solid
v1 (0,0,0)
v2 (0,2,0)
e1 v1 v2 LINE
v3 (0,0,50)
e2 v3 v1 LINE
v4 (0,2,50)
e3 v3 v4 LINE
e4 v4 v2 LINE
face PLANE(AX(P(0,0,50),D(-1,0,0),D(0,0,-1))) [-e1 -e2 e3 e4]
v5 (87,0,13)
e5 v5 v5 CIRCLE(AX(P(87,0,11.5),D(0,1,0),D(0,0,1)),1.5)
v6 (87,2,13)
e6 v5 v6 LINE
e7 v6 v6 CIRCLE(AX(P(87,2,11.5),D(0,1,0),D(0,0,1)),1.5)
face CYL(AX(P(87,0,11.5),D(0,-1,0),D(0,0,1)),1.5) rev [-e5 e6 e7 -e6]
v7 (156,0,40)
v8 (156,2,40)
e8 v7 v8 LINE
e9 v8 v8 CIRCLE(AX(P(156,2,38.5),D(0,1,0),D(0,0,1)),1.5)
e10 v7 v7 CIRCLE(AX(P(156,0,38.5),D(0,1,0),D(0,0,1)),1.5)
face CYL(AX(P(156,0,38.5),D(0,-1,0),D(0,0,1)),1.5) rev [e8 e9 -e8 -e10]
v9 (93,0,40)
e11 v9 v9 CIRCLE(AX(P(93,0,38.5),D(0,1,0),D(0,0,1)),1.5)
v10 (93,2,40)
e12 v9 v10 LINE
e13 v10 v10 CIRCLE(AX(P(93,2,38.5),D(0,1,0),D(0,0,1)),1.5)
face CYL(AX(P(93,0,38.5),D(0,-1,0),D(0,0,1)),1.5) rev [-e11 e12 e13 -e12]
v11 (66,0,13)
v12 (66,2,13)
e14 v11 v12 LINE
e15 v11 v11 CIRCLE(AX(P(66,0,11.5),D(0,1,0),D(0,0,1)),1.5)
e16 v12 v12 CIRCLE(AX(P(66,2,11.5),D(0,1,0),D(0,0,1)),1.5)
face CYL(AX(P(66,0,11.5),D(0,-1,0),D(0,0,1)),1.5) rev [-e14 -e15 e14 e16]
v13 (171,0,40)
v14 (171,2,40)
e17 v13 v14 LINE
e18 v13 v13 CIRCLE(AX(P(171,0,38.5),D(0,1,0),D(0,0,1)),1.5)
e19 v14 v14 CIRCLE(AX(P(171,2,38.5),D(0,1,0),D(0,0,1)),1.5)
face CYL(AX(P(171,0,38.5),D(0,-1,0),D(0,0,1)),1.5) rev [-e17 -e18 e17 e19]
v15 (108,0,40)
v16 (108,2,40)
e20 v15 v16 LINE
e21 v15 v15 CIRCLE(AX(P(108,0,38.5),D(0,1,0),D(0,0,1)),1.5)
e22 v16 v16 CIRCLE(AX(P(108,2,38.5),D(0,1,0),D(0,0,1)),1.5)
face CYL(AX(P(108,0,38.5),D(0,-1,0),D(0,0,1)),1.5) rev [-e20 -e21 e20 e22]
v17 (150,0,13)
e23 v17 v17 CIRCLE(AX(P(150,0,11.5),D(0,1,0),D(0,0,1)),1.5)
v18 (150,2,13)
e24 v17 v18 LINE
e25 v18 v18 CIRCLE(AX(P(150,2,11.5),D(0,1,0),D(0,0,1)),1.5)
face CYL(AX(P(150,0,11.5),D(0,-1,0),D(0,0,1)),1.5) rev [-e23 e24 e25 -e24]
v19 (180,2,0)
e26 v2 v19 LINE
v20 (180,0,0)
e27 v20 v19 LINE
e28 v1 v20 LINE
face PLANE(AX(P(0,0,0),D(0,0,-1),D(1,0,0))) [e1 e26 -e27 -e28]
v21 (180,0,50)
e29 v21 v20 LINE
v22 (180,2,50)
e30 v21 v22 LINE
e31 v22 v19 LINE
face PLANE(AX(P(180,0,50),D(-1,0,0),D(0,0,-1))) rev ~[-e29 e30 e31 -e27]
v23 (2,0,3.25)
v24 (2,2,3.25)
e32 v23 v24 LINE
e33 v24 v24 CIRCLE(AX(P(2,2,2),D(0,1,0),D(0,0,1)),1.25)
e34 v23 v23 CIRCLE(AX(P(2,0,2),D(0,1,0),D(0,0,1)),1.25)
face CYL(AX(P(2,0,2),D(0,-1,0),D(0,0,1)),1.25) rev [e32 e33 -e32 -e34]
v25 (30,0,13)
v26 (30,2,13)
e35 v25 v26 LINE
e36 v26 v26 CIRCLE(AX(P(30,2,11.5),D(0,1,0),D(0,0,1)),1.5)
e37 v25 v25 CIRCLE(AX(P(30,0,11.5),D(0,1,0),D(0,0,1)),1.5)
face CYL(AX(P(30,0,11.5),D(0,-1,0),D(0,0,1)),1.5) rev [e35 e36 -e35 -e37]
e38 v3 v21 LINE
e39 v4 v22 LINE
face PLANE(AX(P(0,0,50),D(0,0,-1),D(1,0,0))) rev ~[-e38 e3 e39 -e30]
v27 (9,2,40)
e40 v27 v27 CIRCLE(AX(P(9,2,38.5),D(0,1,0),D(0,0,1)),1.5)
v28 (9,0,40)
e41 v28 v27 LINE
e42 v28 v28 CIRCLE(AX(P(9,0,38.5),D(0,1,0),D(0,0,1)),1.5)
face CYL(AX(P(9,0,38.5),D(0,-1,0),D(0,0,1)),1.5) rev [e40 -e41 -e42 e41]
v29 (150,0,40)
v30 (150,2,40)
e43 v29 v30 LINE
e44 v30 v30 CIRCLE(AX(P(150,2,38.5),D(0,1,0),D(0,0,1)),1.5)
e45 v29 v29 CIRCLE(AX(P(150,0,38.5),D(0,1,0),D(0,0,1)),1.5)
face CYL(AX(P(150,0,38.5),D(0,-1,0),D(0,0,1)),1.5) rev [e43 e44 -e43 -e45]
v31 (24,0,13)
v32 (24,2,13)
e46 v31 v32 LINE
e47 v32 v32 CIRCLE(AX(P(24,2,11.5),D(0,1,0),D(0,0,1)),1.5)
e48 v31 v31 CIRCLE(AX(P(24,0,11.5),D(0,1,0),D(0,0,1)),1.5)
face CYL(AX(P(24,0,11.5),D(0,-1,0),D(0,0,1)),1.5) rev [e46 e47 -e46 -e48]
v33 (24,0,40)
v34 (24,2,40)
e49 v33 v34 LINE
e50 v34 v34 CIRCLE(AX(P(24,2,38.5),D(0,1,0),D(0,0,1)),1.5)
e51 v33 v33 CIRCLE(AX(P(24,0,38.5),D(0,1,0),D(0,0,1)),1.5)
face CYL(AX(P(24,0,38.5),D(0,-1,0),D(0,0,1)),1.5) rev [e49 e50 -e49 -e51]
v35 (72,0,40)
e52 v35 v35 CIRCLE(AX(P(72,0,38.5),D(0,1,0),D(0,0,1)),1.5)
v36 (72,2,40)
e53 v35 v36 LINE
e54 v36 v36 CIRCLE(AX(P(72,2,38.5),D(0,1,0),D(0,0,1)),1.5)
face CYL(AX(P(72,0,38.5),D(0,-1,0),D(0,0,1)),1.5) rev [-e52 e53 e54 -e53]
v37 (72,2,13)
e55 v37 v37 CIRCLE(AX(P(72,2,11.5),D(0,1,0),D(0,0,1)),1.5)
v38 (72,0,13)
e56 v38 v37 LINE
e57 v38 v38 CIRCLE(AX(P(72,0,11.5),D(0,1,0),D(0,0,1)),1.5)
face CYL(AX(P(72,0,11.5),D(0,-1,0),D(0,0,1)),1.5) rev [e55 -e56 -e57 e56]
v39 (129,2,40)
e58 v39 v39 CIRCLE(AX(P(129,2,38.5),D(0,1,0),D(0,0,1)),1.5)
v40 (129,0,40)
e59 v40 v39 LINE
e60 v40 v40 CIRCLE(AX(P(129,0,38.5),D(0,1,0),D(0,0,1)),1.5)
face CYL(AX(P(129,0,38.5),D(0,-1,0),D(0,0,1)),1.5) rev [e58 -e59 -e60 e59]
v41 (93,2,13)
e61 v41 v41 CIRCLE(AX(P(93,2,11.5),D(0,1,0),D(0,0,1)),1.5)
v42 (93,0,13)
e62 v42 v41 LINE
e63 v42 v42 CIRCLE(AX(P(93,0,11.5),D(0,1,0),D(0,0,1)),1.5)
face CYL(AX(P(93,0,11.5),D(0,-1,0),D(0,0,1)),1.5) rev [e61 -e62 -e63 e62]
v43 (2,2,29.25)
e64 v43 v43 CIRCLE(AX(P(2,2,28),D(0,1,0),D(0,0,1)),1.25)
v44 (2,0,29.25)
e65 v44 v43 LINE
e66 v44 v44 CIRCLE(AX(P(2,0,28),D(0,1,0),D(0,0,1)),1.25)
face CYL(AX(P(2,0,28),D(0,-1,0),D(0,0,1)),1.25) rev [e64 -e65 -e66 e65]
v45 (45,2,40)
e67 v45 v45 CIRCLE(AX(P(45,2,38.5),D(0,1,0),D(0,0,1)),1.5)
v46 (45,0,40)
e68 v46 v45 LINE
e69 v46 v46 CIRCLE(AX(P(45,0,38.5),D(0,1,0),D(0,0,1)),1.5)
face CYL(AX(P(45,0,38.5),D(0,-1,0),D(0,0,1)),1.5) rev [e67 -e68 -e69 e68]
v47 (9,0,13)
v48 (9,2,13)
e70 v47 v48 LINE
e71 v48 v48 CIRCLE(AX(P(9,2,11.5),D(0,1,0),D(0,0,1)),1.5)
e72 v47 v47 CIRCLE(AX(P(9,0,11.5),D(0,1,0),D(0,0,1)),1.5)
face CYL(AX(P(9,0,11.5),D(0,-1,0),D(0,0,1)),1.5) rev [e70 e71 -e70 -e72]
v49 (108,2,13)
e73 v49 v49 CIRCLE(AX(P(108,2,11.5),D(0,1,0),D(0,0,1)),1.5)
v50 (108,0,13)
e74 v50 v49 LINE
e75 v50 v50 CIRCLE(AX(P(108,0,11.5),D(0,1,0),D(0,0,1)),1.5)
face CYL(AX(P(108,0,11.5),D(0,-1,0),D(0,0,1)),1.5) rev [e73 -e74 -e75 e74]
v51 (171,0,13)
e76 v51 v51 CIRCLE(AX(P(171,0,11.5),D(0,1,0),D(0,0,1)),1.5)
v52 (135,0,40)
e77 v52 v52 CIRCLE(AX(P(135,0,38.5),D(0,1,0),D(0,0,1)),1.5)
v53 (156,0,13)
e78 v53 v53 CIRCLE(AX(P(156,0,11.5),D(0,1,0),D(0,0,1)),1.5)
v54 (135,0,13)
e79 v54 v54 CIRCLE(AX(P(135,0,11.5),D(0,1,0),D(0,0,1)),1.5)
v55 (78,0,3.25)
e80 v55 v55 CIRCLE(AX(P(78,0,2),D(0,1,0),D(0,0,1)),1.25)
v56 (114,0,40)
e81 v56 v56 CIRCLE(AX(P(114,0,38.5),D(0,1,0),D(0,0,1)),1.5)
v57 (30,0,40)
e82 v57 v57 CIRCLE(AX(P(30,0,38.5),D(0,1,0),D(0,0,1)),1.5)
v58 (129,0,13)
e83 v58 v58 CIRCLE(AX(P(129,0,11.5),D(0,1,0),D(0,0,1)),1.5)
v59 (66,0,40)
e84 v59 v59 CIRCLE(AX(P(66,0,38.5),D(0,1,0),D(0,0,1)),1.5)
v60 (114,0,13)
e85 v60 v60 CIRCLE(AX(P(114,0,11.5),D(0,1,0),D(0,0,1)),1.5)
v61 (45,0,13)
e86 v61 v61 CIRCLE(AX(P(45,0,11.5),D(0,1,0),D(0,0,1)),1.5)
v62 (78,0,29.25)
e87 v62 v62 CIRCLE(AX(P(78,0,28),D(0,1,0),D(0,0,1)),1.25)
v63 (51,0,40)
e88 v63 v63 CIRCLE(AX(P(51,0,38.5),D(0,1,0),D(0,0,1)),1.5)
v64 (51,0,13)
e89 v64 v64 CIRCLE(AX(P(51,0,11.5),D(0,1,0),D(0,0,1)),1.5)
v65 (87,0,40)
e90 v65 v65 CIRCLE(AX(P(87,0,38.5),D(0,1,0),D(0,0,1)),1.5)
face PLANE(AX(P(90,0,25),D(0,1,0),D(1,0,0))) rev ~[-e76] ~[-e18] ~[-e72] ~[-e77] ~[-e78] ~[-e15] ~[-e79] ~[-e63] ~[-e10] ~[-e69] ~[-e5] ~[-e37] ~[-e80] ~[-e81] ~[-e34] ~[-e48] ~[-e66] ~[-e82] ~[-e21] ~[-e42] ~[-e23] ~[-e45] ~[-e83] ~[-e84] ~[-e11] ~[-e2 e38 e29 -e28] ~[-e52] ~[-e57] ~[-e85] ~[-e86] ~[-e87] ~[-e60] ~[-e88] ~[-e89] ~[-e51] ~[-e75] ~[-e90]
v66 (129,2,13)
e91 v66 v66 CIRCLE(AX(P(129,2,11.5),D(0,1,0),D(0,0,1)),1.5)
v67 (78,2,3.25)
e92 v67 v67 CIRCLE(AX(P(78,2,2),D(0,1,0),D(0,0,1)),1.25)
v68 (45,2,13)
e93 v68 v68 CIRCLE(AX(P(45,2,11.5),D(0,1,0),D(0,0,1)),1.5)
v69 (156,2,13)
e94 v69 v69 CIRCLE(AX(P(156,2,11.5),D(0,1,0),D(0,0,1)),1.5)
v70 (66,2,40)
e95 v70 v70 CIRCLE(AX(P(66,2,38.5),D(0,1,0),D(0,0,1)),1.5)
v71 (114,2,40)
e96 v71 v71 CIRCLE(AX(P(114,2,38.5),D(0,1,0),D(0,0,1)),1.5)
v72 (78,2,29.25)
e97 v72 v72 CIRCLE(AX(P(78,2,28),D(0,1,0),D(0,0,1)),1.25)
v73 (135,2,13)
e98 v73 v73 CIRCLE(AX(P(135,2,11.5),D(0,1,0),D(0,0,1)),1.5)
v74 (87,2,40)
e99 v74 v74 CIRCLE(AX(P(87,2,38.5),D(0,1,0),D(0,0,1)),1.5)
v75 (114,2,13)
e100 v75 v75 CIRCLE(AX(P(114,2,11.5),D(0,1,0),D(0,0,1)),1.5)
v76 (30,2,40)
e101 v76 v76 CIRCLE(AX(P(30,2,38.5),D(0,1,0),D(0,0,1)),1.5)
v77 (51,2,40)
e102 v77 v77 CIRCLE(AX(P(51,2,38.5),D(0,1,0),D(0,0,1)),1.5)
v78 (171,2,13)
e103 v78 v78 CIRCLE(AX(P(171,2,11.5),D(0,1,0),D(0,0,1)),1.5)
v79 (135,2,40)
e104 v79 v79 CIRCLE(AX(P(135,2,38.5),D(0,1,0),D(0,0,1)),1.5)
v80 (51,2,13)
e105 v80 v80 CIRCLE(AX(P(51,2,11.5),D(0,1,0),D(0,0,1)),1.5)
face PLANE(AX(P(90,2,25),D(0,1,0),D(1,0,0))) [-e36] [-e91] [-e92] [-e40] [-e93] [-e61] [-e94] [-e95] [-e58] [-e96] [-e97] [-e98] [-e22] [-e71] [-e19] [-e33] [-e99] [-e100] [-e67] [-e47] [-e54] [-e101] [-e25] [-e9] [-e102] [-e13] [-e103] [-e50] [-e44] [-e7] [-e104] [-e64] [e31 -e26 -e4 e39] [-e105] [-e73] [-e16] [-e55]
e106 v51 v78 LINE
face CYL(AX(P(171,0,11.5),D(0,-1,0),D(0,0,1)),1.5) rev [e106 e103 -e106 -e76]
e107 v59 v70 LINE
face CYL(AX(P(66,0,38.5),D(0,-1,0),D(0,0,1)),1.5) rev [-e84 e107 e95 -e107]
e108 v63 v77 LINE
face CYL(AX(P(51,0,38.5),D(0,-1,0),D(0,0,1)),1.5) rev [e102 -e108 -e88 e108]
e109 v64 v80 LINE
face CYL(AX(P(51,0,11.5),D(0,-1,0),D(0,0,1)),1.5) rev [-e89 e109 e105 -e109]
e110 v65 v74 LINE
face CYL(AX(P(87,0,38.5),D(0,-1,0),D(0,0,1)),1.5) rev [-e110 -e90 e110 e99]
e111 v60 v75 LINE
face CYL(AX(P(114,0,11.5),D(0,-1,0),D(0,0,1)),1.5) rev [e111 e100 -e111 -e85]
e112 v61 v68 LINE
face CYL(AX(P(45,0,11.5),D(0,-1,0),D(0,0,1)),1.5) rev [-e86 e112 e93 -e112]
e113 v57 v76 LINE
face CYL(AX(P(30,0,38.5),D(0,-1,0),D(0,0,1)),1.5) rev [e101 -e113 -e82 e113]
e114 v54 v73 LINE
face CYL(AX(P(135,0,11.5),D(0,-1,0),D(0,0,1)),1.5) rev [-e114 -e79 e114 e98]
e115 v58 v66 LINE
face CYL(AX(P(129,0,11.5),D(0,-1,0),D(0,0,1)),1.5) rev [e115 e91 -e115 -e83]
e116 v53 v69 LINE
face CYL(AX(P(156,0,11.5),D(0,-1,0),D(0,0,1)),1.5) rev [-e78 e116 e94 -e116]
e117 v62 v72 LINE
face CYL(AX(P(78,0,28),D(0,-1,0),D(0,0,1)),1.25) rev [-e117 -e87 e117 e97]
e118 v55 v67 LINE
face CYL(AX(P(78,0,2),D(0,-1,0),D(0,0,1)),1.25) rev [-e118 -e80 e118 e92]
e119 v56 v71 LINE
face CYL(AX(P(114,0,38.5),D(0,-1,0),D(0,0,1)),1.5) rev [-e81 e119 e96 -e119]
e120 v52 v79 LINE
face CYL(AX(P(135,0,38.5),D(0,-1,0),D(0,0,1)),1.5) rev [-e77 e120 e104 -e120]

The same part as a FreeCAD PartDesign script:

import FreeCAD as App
import Part
import Sketcher
Q = App.Units.Quantity

doc = App.newDocument("Part")
body = doc.addObject("PartDesign::Body", "Body")

# Sketch on XZ plane
sketch1 = doc.addObject("Sketcher::SketchObject", "Sketch")
body.addObject(sketch1)
sketch1.AttachmentSupport = (doc.XZ_Plane, [""])
sketch1.MapMode = "FlatFace"
sketch1.addGeometry([
    Part.LineSegment(App.Vector(0, 0, 0), App.Vector(0, 50, 0)),  # 0
    Part.LineSegment(App.Vector(0, 50, 0), App.Vector(180, 50, 0)),  # 1
    Part.LineSegment(App.Vector(180, 50, 0), App.Vector(180, 0, 0)),  # 2
    Part.LineSegment(App.Vector(180, 0, 0), App.Vector(0, 0, 0)),  # 3
    Part.Circle(App.Vector(9, 38.5, 0), App.Vector(0, 0, 1), 1.5),  # 4
    Part.Circle(App.Vector(24, 38.5, 0), App.Vector(0, 0, 1), 1.5),  # 5
    Part.Circle(App.Vector(30, 38.5, 0), App.Vector(0, 0, 1), 1.5),  # 6
    Part.Circle(App.Vector(45, 38.5, 0), App.Vector(0, 0, 1), 1.5),  # 7
    Part.Circle(App.Vector(51, 38.5, 0), App.Vector(0, 0, 1), 1.5),  # 8
    Part.Circle(App.Vector(66, 38.5, 0), App.Vector(0, 0, 1), 1.5),  # 9
    Part.Circle(App.Vector(72, 38.5, 0), App.Vector(0, 0, 1), 1.5),  # 10
    Part.Circle(App.Vector(2, 28, 0), App.Vector(0, 0, 1), 1.25),  # 11
    Part.Circle(App.Vector(78, 28, 0), App.Vector(0, 0, 1), 1.25),  # 12
    Part.Circle(App.Vector(87, 38.5, 0), App.Vector(0, 0, 1), 1.5),  # 13
    Part.Circle(App.Vector(93, 38.5, 0), App.Vector(0, 0, 1), 1.5),  # 14
    Part.Circle(App.Vector(108, 38.5, 0), App.Vector(0, 0, 1), 1.5),  # 15
    Part.Circle(App.Vector(114, 38.5, 0), App.Vector(0, 0, 1), 1.5),  # 16
    Part.Circle(App.Vector(129, 38.5, 0), App.Vector(0, 0, 1), 1.5),  # 17
    Part.Circle(App.Vector(135, 38.5, 0), App.Vector(0, 0, 1), 1.5),  # 18
    Part.Circle(App.Vector(150, 38.5, 0), App.Vector(0, 0, 1), 1.5),  # 19
    Part.Circle(App.Vector(156, 38.5, 0), App.Vector(0, 0, 1), 1.5),  # 20
    Part.Circle(App.Vector(171, 38.5, 0), App.Vector(0, 0, 1), 1.5),  # 21
    Part.Circle(App.Vector(9, 11.5, 0), App.Vector(0, 0, 1), 1.5),  # 22
    Part.Circle(App.Vector(24, 11.5, 0), App.Vector(0, 0, 1), 1.5),  # 23
    Part.Circle(App.Vector(30, 11.5, 0), App.Vector(0, 0, 1), 1.5),  # 24
    Part.Circle(App.Vector(45, 11.5, 0), App.Vector(0, 0, 1), 1.5),  # 25
    Part.Circle(App.Vector(51, 11.5, 0), App.Vector(0, 0, 1), 1.5),  # 26
    Part.Circle(App.Vector(66, 11.5, 0), App.Vector(0, 0, 1), 1.5),  # 27
    Part.Circle(App.Vector(72, 11.5, 0), App.Vector(0, 0, 1), 1.5),  # 28
    Part.Circle(App.Vector(2, 2, 0), App.Vector(0, 0, 1), 1.25),  # 29
    Part.Circle(App.Vector(78, 2, 0), App.Vector(0, 0, 1), 1.25),  # 30
    Part.Circle(App.Vector(87, 11.5, 0), App.Vector(0, 0, 1), 1.5),  # 31
    Part.Circle(App.Vector(93, 11.5, 0), App.Vector(0, 0, 1), 1.5),  # 32
    Part.Circle(App.Vector(108, 11.5, 0), App.Vector(0, 0, 1), 1.5),  # 33
    Part.Circle(App.Vector(114, 11.5, 0), App.Vector(0, 0, 1), 1.5),  # 34
    Part.Circle(App.Vector(129, 11.5, 0), App.Vector(0, 0, 1), 1.5),  # 35
    Part.Circle(App.Vector(135, 11.5, 0), App.Vector(0, 0, 1), 1.5),  # 36
    Part.Circle(App.Vector(150, 11.5, 0), App.Vector(0, 0, 1), 1.5),  # 37
    Part.Circle(App.Vector(156, 11.5, 0), App.Vector(0, 0, 1), 1.5),  # 38
    Part.Circle(App.Vector(171, 11.5, 0), App.Vector(0, 0, 1), 1.5),  # 39
], False)
sketch1.addConstraint([
    Sketcher.Constraint("Coincident", 0, 2, 1, 1),
    Sketcher.Constraint("Coincident", 1, 2, 2, 1),
    Sketcher.Constraint("Coincident", 2, 2, 3, 1),
    Sketcher.Constraint("Coincident", 3, 2, 0, 1),
    Sketcher.Constraint("Vertical", 0),
    Sketcher.Constraint("Horizontal", 1),
    Sketcher.Constraint("Vertical", 2),
    Sketcher.Constraint("Horizontal", 3),
    Sketcher.Constraint("Coincident", 3, 2, -1, 1),
    Sketcher.Constraint("Equal", 4, 5),
    Sketcher.Constraint("Equal", 5, 6),
    Sketcher.Constraint("Equal", 6, 7),
    Sketcher.Constraint("Equal", 7, 8),
    Sketcher.Constraint("Equal", 8, 9),
    Sketcher.Constraint("Equal", 9, 10),
    Sketcher.Constraint("Equal", 11, 12),
    Sketcher.Constraint("Equal", 10, 13),
    Sketcher.Constraint("Equal", 13, 14),
    Sketcher.Constraint("Equal", 14, 15),
    Sketcher.Constraint("Equal", 15, 16),
    Sketcher.Constraint("Equal", 16, 17),
    Sketcher.Constraint("Equal", 17, 18),
    Sketcher.Constraint("Equal", 18, 19),
    Sketcher.Constraint("Equal", 19, 20),
    Sketcher.Constraint("Equal", 20, 21),
    Sketcher.Constraint("Equal", 21, 22),
    Sketcher.Constraint("Equal", 22, 23),
    Sketcher.Constraint("Equal", 23, 24),
    Sketcher.Constraint("Equal", 24, 25),
    Sketcher.Constraint("Equal", 25, 26),
    Sketcher.Constraint("Equal", 26, 27),
    Sketcher.Constraint("Equal", 27, 28),
    Sketcher.Constraint("Equal", 12, 29),
    Sketcher.Constraint("Equal", 29, 30),
    Sketcher.Constraint("Equal", 28, 31),
    Sketcher.Constraint("Equal", 31, 32),
    Sketcher.Constraint("Equal", 32, 33),
    Sketcher.Constraint("Equal", 33, 34),
    Sketcher.Constraint("Equal", 34, 35),
    Sketcher.Constraint("Equal", 35, 36),
    Sketcher.Constraint("Equal", 36, 37),
    Sketcher.Constraint("Equal", 37, 38),
    Sketcher.Constraint("Equal", 38, 39),
    Sketcher.Constraint("Horizontal", 4, 3, 5, 3),
    Sketcher.Constraint("Horizontal", 5, 3, 6, 3),
    Sketcher.Constraint("Horizontal", 6, 3, 7, 3),
    Sketcher.Constraint("Horizontal", 7, 3, 8, 3),
    Sketcher.Constraint("Horizontal", 8, 3, 9, 3),
    Sketcher.Constraint("Horizontal", 9, 3, 10, 3),
    Sketcher.Constraint("Horizontal", 11, 3, 12, 3),
    Sketcher.Constraint("Horizontal", 10, 3, 13, 3),
    Sketcher.Constraint("Horizontal", 13, 3, 14, 3),
    Sketcher.Constraint("Horizontal", 14, 3, 15, 3),
    Sketcher.Constraint("Horizontal", 15, 3, 16, 3),
    Sketcher.Constraint("Horizontal", 16, 3, 17, 3),
    Sketcher.Constraint("Horizontal", 17, 3, 18, 3),
    Sketcher.Constraint("Horizontal", 18, 3, 19, 3),
    Sketcher.Constraint("Horizontal", 19, 3, 20, 3),
    Sketcher.Constraint("Horizontal", 20, 3, 21, 3),
    Sketcher.Constraint("Horizontal", 22, 3, 23, 3),
    Sketcher.Constraint("Horizontal", 23, 3, 24, 3),
    Sketcher.Constraint("Horizontal", 24, 3, 25, 3),
    Sketcher.Constraint("Horizontal", 25, 3, 26, 3),
    Sketcher.Constraint("Horizontal", 26, 3, 27, 3),
    Sketcher.Constraint("Horizontal", 27, 3, 28, 3),
    Sketcher.Constraint("Horizontal", 29, 3, 30, 3),
    Sketcher.Constraint("Horizontal", 28, 3, 31, 3),
    Sketcher.Constraint("Horizontal", 31, 3, 32, 3),
    Sketcher.Constraint("Horizontal", 32, 3, 33, 3),
    Sketcher.Constraint("Horizontal", 33, 3, 34, 3),
    Sketcher.Constraint("Horizontal", 34, 3, 35, 3),
    Sketcher.Constraint("Horizontal", 35, 3, 36, 3),
    Sketcher.Constraint("Horizontal", 36, 3, 37, 3),
    Sketcher.Constraint("Horizontal", 37, 3, 38, 3),
    Sketcher.Constraint("Horizontal", 38, 3, 39, 3),
    Sketcher.Constraint("Vertical", 4, 3, 22, 3),
    Sketcher.Constraint("Vertical", 5, 3, 23, 3),
    Sketcher.Constraint("Vertical", 6, 3, 24, 3),
    Sketcher.Constraint("Vertical", 7, 3, 25, 3),
    Sketcher.Constraint("Vertical", 8, 3, 26, 3),
    Sketcher.Constraint("Vertical", 9, 3, 27, 3),
    Sketcher.Constraint("Vertical", 10, 3, 28, 3),
    Sketcher.Constraint("Vertical", 11, 3, 29, 3),
    Sketcher.Constraint("Vertical", 12, 3, 30, 3),
    Sketcher.Constraint("Vertical", 13, 3, 31, 3),
    Sketcher.Constraint("Vertical", 14, 3, 32, 3),
    Sketcher.Constraint("Vertical", 15, 3, 33, 3),
    Sketcher.Constraint("Vertical", 16, 3, 34, 3),
    Sketcher.Constraint("Vertical", 17, 3, 35, 3),
    Sketcher.Constraint("Vertical", 18, 3, 36, 3),
    Sketcher.Constraint("Vertical", 19, 3, 37, 3),
    Sketcher.Constraint("Vertical", 20, 3, 38, 3),
    Sketcher.Constraint("Vertical", 21, 3, 39, 3),
    Sketcher.Constraint("Diameter", 4, Q("3 mm")),
    Sketcher.Constraint("Diameter", 11, Q("2.5 mm")),
    Sketcher.Constraint("DistanceX", 1, 1, 1, 2, Q("180 mm")),
    Sketcher.Constraint("DistanceY", 0, 1, 0, 2, Q("50 mm")),
    Sketcher.Constraint("DistanceX", -1, 1, 4, 3, Q("9 mm")),
    Sketcher.Constraint("DistanceX", -1, 1, 5, 3, Q("24 mm")),
    Sketcher.Constraint("DistanceX", -1, 1, 6, 3, Q("30 mm")),
    Sketcher.Constraint("DistanceX", -1, 1, 7, 3, Q("45 mm")),
    Sketcher.Constraint("DistanceX", -1, 1, 8, 3, Q("51 mm")),
    Sketcher.Constraint("DistanceX", -1, 1, 9, 3, Q("66 mm")),
    Sketcher.Constraint("DistanceX", -1, 1, 10, 3, Q("72 mm")),
    Sketcher.Constraint("DistanceX", -1, 1, 11, 3, Q("2 mm")),
    Sketcher.Constraint("DistanceY", -1, 1, 11, 3, Q("28 mm")),
    Sketcher.Constraint("DistanceX", -1, 1, 12, 3, Q("78 mm")),
    Sketcher.Constraint("DistanceX", -1, 1, 13, 3, Q("87 mm")),
    Sketcher.Constraint("DistanceX", -1, 1, 14, 3, Q("93 mm")),
    Sketcher.Constraint("DistanceX", -1, 1, 15, 3, Q("108 mm")),
    Sketcher.Constraint("DistanceX", -1, 1, 16, 3, Q("114 mm")),
    Sketcher.Constraint("DistanceX", -1, 1, 17, 3, Q("129 mm")),
    Sketcher.Constraint("DistanceX", -1, 1, 18, 3, Q("135 mm")),
    Sketcher.Constraint("DistanceX", -1, 1, 19, 3, Q("150 mm")),
    Sketcher.Constraint("DistanceX", -1, 1, 20, 3, Q("156 mm")),
    Sketcher.Constraint("DistanceX", -1, 1, 21, 3, Q("171 mm")),
    Sketcher.Constraint("DistanceY", -1, 1, 29, 3, Q("2 mm")),
    Sketcher.Constraint("DistanceY", 22, 3, 4, 3, Q("27 mm")),
    Sketcher.Constraint("DistanceY", -1, 1, 4, 3, Q("38.5 mm")),
])
pad1 = doc.addObject("PartDesign::Pad", "Pad")
body.addObject(pad1)
pad1.Profile = sketch1
pad1.Length = 2
pad1.Reversed = True

doc.recompute()
